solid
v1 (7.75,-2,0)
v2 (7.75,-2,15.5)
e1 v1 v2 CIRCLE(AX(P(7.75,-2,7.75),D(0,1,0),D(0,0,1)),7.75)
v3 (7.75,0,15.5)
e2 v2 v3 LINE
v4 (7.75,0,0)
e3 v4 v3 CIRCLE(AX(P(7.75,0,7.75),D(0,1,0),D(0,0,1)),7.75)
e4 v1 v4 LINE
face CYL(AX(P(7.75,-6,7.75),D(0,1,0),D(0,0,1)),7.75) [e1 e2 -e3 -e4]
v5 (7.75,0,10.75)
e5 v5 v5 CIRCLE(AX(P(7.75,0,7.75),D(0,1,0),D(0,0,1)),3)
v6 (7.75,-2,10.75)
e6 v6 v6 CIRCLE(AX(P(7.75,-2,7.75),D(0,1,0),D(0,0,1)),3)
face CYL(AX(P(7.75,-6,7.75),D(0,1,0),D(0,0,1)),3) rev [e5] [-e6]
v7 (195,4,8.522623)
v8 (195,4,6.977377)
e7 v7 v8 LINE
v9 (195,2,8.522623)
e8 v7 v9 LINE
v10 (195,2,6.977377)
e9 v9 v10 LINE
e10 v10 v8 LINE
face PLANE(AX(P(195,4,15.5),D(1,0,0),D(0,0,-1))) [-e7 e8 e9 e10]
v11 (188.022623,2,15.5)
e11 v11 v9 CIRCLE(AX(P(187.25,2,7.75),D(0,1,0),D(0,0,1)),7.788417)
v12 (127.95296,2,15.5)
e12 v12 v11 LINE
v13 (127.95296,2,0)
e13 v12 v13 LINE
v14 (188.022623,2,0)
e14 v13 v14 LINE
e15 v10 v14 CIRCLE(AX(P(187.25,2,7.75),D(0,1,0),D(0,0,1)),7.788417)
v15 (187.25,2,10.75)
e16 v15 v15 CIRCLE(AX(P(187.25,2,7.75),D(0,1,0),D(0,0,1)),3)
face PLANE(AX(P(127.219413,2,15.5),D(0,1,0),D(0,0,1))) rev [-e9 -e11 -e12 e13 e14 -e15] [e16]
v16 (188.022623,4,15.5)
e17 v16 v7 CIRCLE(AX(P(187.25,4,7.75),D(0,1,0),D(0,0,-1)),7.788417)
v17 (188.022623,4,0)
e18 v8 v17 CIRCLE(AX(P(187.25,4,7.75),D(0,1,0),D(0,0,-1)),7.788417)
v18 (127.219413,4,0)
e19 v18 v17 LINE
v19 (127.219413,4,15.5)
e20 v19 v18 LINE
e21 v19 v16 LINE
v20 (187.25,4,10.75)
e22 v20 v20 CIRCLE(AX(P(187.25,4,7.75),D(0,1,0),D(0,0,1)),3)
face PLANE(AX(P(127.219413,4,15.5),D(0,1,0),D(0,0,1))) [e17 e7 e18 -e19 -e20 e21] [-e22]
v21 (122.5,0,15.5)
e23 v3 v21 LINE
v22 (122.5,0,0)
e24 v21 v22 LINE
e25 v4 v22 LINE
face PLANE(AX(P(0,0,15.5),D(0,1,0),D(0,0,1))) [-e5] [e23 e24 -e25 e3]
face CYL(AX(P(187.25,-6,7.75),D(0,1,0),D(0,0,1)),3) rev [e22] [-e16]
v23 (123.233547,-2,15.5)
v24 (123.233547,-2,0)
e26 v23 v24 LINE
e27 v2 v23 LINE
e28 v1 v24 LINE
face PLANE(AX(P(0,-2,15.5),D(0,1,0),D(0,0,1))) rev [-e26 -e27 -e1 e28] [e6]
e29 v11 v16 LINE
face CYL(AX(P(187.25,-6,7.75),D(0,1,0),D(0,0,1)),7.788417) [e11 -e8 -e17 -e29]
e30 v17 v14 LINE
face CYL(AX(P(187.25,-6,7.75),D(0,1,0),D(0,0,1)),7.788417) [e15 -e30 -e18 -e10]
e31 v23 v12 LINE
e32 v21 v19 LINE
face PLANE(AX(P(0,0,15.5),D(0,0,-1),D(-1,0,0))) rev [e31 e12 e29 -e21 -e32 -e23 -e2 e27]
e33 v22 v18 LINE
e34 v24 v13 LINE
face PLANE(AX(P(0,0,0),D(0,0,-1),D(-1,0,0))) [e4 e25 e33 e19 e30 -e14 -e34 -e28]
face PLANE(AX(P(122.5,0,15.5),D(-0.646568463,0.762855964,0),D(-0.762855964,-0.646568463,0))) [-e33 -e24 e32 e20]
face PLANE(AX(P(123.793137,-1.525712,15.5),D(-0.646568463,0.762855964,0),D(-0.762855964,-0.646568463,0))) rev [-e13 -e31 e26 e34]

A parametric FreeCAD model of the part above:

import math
import FreeCAD as App
import Part
import Sketcher

V = App.Vector
Q = App.Units.Quantity

doc = App.newDocument("Part")
body = doc.addObject("PartDesign::Body", "Body")

# Sketch on XY plane
sketch1 = body.newObject("Sketcher::SketchObject", "Sketch")
sketch1.AttachmentSupport = (doc.getObject("XY_Plane"), [""])
sketch1.MapMode = "FlatFace"
sketch1.addGeometry([
    Part.LineSegment(V(122.5, 0, 0), V(0, 0, 0)),  # 0
    Part.LineSegment(V(0, 0, 0), V(0, -2, 0)),  # 1
    Part.LineSegment(V(0, -2, 0), V(123.233547, -2, 0)),  # 2
    Part.LineSegment(V(123.233547, -2, 0), V(127.95296, 2, 0)),  # 3
    Part.LineSegment(V(127.95296, 2, 0), V(195, 2, 0)),  # 4
    Part.LineSegment(V(195, 2, 0), V(195, 4, 0)),  # 5
    Part.LineSegment(V(195, 4, 0), V(127.219413, 4, 0)),  # 6
    Part.LineSegment(V(127.219413, 4, 0), V(122.5, 0, 0)),  # 7
], False)
sketch1.addConstraint([
    Sketcher.Constraint("Coincident", 0, 2, 1, 1),
    Sketcher.Constraint("Coincident", 1, 2, 2, 1),
    Sketcher.Constraint("Coincident", 2, 2, 3, 1),
    Sketcher.Constraint("Coincident", 3, 2, 4, 1),
    Sketcher.Constraint("Coincident", 4, 2, 5, 1),
    Sketcher.Constraint("Coincident", 5, 2, 6, 1),
    Sketcher.Constraint("Coincident", 6, 2, 7, 1),
    Sketcher.Constraint("Coincident", 7, 2, 0, 1),
    Sketcher.Constraint("Horizontal", 0),
    Sketcher.Constraint("Vertical", 1),
    Sketcher.Constraint("Horizontal", 2),
    Sketcher.Constraint("Horizontal", 4),
    Sketcher.Constraint("Vertical", 5),
    Sketcher.Constraint("Horizontal", 6),
    Sketcher.Constraint("Coincident", 0, 2, -1, 1),
    Sketcher.Constraint("Parallel", 3, 7),
    Sketcher.Constraint("Equal", 1, 5),
    Sketcher.Constraint("DistanceY", 1, 2, 1, 1, Q("2 mm")),
    Sketcher.Constraint("DistanceX", 0, 2, 0, 1, Q("122.5 mm")),
    Sketcher.Constraint("DistanceY", -1, 1, 3, 2, Q("2 mm")),
    Sketcher.Constraint("DistanceX", -1, 1, 4, 2, Q("195 mm")),
    Sketcher.Constraint("DistanceX", 4, 1, 4, 2, Q("67.04704 mm")),
    Sketcher.Constraint("DistanceX", 2, 1, 2, 2, Q("123.233547 mm")),
])
pad1 = body.newObject("PartDesign::Pad", "Pad")
pad1.Profile = sketch1
pad1.Length = 15.5

# Sketch on XZ plane
sketch2 = body.newObject("Sketcher::SketchObject", "Sketch001")
sketch2.AttachmentSupport = (doc.getObject("XZ_Plane"), [""])
sketch2.MapMode = "FlatFace"
sketch2.AttachmentOffset = App.Placement(V(0, 0, -4), App.Rotation())
sketch2.addGeometry([
    Part.LineSegment(V(-20.571, -20.571, 0), V(-20.571, 36.071, 0)),  # 0
    Part.LineSegment(V(-20.571, 36.071, 0), V(215.571, 36.071, 0)),  # 1
    Part.LineSegment(V(215.571, 36.071, 0), V(215.571, -20.571, 0)),  # 2
    Part.LineSegment(V(215.571, -20.571, 0), V(-20.571, -20.571, 0)),  # 3
    Part.LineSegment(V(7.75, 0, 0), V(188.022623, 0, 0)),  # 4
    Part.ArcOfCircle(Part.Circle(V(187.25, 7.75, 0), V(0, 0, 1), 7.788417), math.radians(-84.306806), math.radians(84.306806)),  # 5
    Part.LineSegment(V(188.022623, 15.5, 0), V(7.75, 15.5, 0)),  # 6
    Part.ArcOfCircle(Part.Circle(V(7.75, 7.75, 0), V(0, 0, 1), 7.75), math.radians(90), math.radians(270)),  # 7
    Part.Circle(V(187.25, 7.75, 0), V(0, 0, 1), 3),  # 8
    Part.Circle(V(7.75, 7.75, 0), V(0, 0, 1), 3),  # 9
], False)
sketch2.addConstraint([
    Sketcher.Constraint("Coincident", 0, 2, 1, 1),
    Sketcher.Constraint("Coincident", 1, 2, 2, 1),
    Sketcher.Constraint("Coincident", 2, 2, 3, 1),
    Sketcher.Constraint("Coincident", 3, 2, 0, 1),
    Sketcher.Constraint("Coincident", 4, 2, 5, 1),
    Sketcher.Constraint("Coincident", 5, 2, 6, 1),
    Sketcher.Constraint("Tangent", 6, 2, 7, 1),
    Sketcher.Constraint("Tangent", 7, 2, 4, 1),
    Sketcher.Constraint("Vertical", 0),
    Sketcher.Constraint("Horizontal", 1),
    Sketcher.Constraint("Vertical", 2),
    Sketcher.Constraint("Horizontal", 3),
    Sketcher.Constraint("Horizontal", 4),
    Sketcher.Constraint("Horizontal", 6),
    Sketcher.Constraint("Coincident", 8, 3, 5, 3),
    Sketcher.Constraint("Coincident", 9, 3, 7, 3),
    Sketcher.Constraint("Equal", 8, 9),
    Sketcher.Constraint("PointOnObject", 4, 2, -1),
    Sketcher.Constraint("Horizontal", 5, 3, 7, 3),
    Sketcher.Constraint("Diameter", 8, Q("6 mm")),
    Sketcher.Constraint("Radius", 7, Q("7.75 mm")),
    Sketcher.Constraint("DistanceX", 7, 3, 5, 3, Q("179.5 mm")),
    Sketcher.Constraint("DistanceX", 1, 1, 1, 2, Q("236.142 mm")),
    Sketcher.Constraint("DistanceY", 0, 1, 0, 2, Q("56.642 mm")),
    Sketcher.Constraint("DistanceX", -1, 1, 5, 3, Q("187.25 mm")),
    Sketcher.Constraint("DistanceX", 0, 2, -1, 1, Q("20.571 mm")),
    Sketcher.Constraint("DistanceY", -1, 1, 0, 2, Q("36.071 mm")),
    Sketcher.Constraint("Radius", 5, Q("7.788417 mm")),
])
pocket1 = body.newObject("PartDesign::Pocket", "Pocket")
pocket1.Profile = sketch2
pocket1.Length = 10
pocket1.Reversed = True

doc.recompute()
